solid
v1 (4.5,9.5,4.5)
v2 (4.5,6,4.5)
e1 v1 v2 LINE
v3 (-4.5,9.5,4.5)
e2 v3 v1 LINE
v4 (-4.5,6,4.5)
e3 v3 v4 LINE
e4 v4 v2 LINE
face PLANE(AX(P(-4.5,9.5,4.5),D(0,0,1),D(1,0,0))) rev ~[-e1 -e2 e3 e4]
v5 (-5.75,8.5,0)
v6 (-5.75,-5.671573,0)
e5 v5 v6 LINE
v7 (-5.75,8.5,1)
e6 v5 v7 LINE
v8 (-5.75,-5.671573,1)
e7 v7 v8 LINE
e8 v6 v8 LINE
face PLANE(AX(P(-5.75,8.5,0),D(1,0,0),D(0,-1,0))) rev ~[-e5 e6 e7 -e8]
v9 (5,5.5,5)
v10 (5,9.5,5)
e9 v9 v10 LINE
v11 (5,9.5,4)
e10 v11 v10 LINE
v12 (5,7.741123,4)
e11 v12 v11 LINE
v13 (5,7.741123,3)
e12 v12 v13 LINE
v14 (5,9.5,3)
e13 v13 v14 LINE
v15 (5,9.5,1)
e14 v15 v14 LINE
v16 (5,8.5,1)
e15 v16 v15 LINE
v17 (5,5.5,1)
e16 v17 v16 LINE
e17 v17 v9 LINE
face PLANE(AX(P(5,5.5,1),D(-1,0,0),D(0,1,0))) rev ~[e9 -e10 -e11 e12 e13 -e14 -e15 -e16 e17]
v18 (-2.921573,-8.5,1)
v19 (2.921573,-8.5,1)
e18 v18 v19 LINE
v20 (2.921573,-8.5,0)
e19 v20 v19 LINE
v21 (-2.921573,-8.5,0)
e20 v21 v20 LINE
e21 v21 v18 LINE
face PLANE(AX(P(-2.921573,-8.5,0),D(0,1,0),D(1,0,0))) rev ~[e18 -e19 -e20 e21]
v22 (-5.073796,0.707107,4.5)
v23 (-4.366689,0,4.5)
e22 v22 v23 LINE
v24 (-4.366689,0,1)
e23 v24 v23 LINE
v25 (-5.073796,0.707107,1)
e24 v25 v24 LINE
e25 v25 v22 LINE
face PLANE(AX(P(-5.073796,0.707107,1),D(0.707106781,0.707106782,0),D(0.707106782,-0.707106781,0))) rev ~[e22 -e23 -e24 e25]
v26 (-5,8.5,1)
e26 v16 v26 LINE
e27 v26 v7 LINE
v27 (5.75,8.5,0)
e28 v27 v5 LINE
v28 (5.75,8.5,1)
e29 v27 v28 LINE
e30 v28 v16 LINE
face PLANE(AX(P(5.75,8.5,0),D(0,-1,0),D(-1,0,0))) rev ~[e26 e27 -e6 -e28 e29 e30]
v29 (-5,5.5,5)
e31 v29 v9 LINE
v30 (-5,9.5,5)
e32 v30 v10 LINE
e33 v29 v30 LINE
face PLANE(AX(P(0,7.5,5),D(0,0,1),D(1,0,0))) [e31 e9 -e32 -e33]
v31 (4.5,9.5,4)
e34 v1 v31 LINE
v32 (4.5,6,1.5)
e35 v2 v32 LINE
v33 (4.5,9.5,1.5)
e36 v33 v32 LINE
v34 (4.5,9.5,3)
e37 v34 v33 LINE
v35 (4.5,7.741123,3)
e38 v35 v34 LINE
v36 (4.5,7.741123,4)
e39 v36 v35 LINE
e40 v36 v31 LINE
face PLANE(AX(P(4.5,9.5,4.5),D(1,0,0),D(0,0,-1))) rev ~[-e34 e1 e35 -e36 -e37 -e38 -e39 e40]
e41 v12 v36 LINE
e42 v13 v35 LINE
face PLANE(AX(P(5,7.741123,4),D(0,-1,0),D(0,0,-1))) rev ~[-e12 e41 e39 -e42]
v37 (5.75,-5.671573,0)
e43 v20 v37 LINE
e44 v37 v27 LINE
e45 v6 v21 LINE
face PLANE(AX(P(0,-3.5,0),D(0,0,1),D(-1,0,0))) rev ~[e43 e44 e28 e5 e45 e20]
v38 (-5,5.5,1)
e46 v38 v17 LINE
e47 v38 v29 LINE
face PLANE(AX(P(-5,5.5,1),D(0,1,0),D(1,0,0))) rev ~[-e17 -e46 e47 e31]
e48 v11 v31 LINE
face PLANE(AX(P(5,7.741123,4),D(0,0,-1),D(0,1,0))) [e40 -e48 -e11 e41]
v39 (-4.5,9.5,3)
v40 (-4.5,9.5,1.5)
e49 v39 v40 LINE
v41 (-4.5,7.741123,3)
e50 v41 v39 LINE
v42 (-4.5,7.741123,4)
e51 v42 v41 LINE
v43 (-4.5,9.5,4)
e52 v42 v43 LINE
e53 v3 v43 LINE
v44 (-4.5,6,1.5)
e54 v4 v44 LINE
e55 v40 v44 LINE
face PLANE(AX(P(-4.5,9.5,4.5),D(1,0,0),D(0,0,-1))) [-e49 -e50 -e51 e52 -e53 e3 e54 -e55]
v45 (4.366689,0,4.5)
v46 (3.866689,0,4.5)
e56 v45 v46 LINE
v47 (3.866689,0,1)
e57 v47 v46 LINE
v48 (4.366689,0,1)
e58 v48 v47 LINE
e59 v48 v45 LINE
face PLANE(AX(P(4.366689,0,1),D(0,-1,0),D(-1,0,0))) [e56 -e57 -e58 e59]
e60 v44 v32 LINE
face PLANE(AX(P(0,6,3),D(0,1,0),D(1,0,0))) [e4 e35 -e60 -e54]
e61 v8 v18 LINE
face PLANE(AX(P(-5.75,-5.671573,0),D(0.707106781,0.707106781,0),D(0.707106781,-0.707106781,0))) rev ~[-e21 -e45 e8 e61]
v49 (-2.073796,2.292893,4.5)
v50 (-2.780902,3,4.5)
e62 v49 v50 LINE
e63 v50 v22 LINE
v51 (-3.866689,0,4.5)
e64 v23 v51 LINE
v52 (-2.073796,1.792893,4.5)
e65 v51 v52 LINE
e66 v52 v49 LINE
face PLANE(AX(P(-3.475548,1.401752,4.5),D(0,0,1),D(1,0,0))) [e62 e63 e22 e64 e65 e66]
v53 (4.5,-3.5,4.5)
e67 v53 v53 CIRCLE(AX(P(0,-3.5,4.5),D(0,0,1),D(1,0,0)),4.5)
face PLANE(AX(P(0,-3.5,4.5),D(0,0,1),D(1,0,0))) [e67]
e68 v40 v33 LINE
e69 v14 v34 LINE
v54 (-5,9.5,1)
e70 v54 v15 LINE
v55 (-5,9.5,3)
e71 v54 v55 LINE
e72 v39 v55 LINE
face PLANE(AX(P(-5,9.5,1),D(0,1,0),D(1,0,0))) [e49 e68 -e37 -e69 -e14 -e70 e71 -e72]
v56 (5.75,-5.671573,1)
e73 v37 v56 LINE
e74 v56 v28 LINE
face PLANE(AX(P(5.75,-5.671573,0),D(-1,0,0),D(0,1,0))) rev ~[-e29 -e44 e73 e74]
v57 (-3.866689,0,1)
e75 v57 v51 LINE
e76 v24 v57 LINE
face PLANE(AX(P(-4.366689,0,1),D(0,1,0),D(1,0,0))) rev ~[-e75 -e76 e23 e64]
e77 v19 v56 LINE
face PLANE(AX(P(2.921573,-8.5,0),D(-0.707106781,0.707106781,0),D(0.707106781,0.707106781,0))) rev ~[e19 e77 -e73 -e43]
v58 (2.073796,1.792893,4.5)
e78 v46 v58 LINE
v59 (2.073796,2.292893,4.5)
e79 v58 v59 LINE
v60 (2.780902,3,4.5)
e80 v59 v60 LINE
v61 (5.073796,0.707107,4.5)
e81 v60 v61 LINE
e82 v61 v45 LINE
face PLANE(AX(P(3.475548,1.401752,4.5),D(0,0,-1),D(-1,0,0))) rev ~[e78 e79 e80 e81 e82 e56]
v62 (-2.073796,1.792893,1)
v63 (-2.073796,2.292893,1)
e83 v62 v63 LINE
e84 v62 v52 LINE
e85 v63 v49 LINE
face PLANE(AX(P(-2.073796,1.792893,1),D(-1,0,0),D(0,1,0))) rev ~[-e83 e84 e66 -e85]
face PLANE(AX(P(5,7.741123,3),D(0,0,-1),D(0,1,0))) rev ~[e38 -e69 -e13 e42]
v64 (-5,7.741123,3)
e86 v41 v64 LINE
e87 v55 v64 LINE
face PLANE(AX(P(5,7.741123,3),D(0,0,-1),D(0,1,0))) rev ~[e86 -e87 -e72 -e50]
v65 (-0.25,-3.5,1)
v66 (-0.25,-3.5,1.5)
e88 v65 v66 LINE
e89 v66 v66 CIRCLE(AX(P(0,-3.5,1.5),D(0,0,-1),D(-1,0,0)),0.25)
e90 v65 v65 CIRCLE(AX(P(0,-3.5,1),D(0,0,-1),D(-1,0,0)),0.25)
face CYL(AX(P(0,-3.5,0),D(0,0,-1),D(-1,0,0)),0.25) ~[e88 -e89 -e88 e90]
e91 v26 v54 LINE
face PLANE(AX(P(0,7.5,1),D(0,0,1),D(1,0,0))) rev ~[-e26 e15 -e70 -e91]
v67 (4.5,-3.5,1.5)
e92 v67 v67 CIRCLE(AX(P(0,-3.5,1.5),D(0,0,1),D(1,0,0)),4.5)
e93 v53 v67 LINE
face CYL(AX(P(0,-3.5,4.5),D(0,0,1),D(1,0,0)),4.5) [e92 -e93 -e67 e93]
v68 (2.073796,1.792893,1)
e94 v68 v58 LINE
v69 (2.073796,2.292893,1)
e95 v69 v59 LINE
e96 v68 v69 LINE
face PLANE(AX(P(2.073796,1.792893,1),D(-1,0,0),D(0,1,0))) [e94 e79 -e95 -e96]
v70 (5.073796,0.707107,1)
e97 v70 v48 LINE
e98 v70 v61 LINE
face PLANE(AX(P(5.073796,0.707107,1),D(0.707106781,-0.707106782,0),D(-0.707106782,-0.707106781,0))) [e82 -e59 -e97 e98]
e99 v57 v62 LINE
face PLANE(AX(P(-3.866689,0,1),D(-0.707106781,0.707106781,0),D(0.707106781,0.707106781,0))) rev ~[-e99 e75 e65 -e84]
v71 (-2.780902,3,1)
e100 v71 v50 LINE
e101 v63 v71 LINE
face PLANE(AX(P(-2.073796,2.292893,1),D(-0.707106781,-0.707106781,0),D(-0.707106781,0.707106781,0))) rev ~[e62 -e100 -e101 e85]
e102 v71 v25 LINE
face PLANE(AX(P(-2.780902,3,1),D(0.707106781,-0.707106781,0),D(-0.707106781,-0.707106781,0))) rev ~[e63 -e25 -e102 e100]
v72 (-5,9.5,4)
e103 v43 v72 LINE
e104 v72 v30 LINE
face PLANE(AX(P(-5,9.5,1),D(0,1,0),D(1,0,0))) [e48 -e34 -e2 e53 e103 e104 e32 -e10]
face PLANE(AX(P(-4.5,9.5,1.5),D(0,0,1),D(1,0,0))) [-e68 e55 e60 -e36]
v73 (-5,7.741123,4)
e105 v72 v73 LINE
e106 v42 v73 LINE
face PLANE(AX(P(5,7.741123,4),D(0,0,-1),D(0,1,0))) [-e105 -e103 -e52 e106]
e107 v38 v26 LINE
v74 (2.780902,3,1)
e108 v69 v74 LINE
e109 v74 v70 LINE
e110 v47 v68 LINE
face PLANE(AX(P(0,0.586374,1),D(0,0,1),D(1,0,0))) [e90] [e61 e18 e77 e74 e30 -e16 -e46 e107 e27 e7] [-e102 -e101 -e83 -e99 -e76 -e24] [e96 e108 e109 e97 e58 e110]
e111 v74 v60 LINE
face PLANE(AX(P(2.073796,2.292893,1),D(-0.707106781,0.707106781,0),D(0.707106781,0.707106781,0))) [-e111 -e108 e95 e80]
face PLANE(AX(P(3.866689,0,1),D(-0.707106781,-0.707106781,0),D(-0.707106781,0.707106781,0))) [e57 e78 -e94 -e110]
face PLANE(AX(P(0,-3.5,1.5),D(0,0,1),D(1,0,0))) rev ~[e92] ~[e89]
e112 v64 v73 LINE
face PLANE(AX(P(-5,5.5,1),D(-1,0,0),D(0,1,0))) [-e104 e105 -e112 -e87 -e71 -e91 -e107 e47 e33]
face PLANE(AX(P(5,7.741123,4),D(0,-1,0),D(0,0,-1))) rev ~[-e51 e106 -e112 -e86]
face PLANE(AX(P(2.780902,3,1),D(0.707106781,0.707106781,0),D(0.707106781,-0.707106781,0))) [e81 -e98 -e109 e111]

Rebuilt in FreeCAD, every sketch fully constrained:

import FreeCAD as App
import Part
import Sketcher
from FreeCAD import Vector
Q = App.Units.Quantity


def add_polygon(sketch, points):
    """Adds a closed chain of lines whose ends are joined by coincident constraints."""
    first, n = sketch.GeometryCount, len(points)
    for a, b in zip(points, points[1:] + points[:1]):
        sketch.addGeometry(Part.LineSegment(App.Vector(*a, 0), App.Vector(*b, 0)), False)
    for i in range(n):
        sketch.addConstraint(Sketcher.Constraint("Coincident", first + i, 2, first + (i + 1) % n, 1))

doc = App.newDocument("Part")
body = doc.addObject("PartDesign::Body", "Body")

sketch1 = body.newObject("Sketcher::SketchObject", "Sketch")
sketch1.AttachmentSupport = (doc.getObject("XY_Plane"), [""])
sketch1.MapMode = "FlatFace"
add_polygon(sketch1, [(-5.8, -5.7), (-2.9, -8.5), (2.9, -8.5), (5.8, -5.7), (5.8, 8.5), (-5.8, 8.5)])
sketch1.addConstraint([
    Sketcher.Constraint("Horizontal", 1),
    Sketcher.Constraint("Vertical", 3),
    Sketcher.Constraint("Horizontal", 4),
    Sketcher.Constraint("Vertical", 5),
    Sketcher.Constraint("Symmetric", 2, 2, 5, 2, -2),
    Sketcher.Constraint("Perpendicular", 0, 2),
    Sketcher.Constraint("Equal", 0, 2),
    Sketcher.Constraint("Distance", 0, Q("4 mm")),
    Sketcher.Constraint("DistanceX", 4, 2, 4, 1, Q("11.5 mm")),
    Sketcher.Constraint("DistanceY", 1, 2, 3, 2, Q("17 mm")),
    Sketcher.Constraint("DistanceY", 0, 2, -1, 1, Q("8.5 mm")),
])
pad1 = body.newObject("PartDesign::Pad", "Pad")
pad1.Profile = sketch1
pad1.Length = 1

sketch2 = body.newObject("Sketcher::SketchObject", "Sketch001")
sketch2.AttachmentSupport = (doc.getObject("XY_Plane"), [""])
sketch2.MapMode = "FlatFace"
sketch2.AttachmentOffset = App.Placement(Vector(0, 0, 1), App.Rotation())
add_polygon(sketch2, [(-2.8, 3), (-5.1, 0.7), (-4.4, 0), (-3.9, 0), (-2.1, 1.8), (-2.1, 2.3)])
add_polygon(sketch2, [(2.1, 2.3), (2.1, 1.8), (3.9, 0), (4.4, 0), (5.1, 0.7), (2.8, 3)])
sketch2.addConstraint([
    Sketcher.Constraint("Horizontal", 2),
    Sketcher.Constraint("Vertical", 4),
    Sketcher.Constraint("Vertical", 6),
    Sketcher.Constraint("Horizontal", 8),
    Sketcher.Constraint("Symmetric", 2, 2, 7, 2, -1, 1),
    Sketcher.Constraint("Symmetric", 3, 2, 6, 2, -2),
    Sketcher.Constraint("Symmetric", 1, 2, 8, 2, -2),
    Sketcher.Constraint("Symmetric", 0, 2, 9, 2, -2),
    Sketcher.Constraint("Symmetric", 5, 2, 10, 2, -2),
    Sketcher.Constraint("Perpendicular", 0, 1),
    Sketcher.Constraint("Perpendicular", 1, 3),
    Sketcher.Constraint("Perpendicular", 3, 5),
    Sketcher.Constraint("Parallel", 5, 7),
    Sketcher.Constraint("Perpendicular", 10, 11),
    Sketcher.Constraint("Equal", 8, 4),
    Sketcher.Constraint("Distance", 1, Q("1 mm")),
    Sketcher.Constraint("DistanceX", 2, 1, 2, 2, Q("0.5 mm")),
    Sketcher.Constraint("DistanceY", -1, 1, 5, 2, Q("3 mm")),
    Sketcher.Constraint("DistanceX", 1, 2, -1, 1, Q("4.366689 mm")),
])
pad2 = body.newObject("PartDesign::Pad", "Pad001")
pad2.Profile = sketch2
pad2.Length = 3.5

sketch3 = body.newObject("Sketcher::SketchObject", "Sketch002")
sketch3.AttachmentSupport = (doc.getObject("XY_Plane"), [""])
sketch3.MapMode = "FlatFace"
sketch3.addGeometry(Part.Circle(Vector(0, -3.5, 0), Vector(0, 0, 1), 0.25), False)
sketch3.addConstraint([
    Sketcher.Constraint("PointOnObject", 0, 3, -2),
    Sketcher.Constraint("Diameter", 0, Q("0.5 mm")),
    Sketcher.Constraint("DistanceY", 0, 3, -1, 1, Q("3.5 mm")),
])
pad3 = body.newObject("PartDesign::Pad", "Pad002")
pad3.Profile = sketch3
pad3.Length = 4.5

sketch4 = body.newObject("Sketcher::SketchObject", "Sketch003")
sketch4.AttachmentSupport = (doc.getObject("XY_Plane"), [""])
sketch4.MapMode = "FlatFace"
sketch4.AttachmentOffset = App.Placement(Vector(0, 0, 4.5), App.Rotation())
sketch4.addGeometry(Part.Circle(Vector(0, -3.5, 0), Vector(0, 0, 1), 4.5), False)
sketch4.addConstraint([
    Sketcher.Constraint("PointOnObject", 0, 3, -2),
    Sketcher.Constraint("Diameter", 0, Q("9 mm")),
    Sketcher.Constraint("DistanceY", 0, 3, -1, 1, Q("3.5 mm")),
])
pad4 = body.newObject("PartDesign::Pad", "Pad003")
pad4.Profile = sketch4
pad4.Length = 3
pad4.Reversed = True

sketch5 = body.newObject("Sketcher::SketchObject", "Sketch004")
sketch5.AttachmentSupport = (doc.getObject("XY_Plane"), [""])
sketch5.MapMode = "FlatFace"
sketch5.AttachmentOffset = App.Placement(Vector(0, 0, 1), App.Rotation())
add_polygon(sketch5, [(-5, 9.5), (-5, 5.5), (5, 5.5), (5, 9.5)])
sketch5.addConstraint([
    Sketcher.Constraint("Vertical", 0),
    Sketcher.Constraint("Horizontal", 1),
    Sketcher.Constraint("Vertical", 2),
    Sketcher.Constraint("Horizontal", 3),
    Sketcher.Constraint("DistanceX", 1, 1, 1, 2, Q("10 mm")),
    Sketcher.Constraint("DistanceY", 0, 2, 0, 1, Q("4 mm")),
    Sketcher.Constraint("DistanceX", 0, 2, -1, 1, Q("5 mm")),
    Sketcher.Constraint("DistanceY", -1, 1, 0, 2, Q("5.5 mm")),
])
pad5 = body.newObject("PartDesign::Pad", "Pad004")
pad5.Profile = sketch5
pad5.Length = 4

sketch6 = body.newObject("Sketcher::SketchObject", "Sketch005")
sketch6.AttachmentSupport = (doc.getObject("XZ_Plane"), [""])
sketch6.MapMode = "FlatFace"
sketch6.AttachmentOffset = App.Placement(Vector(0, 0, -9.5), App.Rotation())
add_polygon(sketch6, [(-4.5, 1.5), (-4.5, 4.5), (4.5, 4.5), (4.5, 1.5)])
sketch6.addConstraint([
    Sketcher.Constraint("Vertical", 0),
    Sketcher.Constraint("Horizontal", 1),
    Sketcher.Constraint("Vertical", 2),
    Sketcher.Constraint("Horizontal", 3),
    Sketcher.Constraint("DistanceX", 1, 1, 1, 2, Q("9 mm")),
    Sketcher.Constraint("DistanceY", 0, 1, 0, 2, Q("3 mm")),
    Sketcher.Constraint("DistanceX", 0, 2, -1, 1, Q("4.5 mm")),
    Sketcher.Constraint("DistanceY", -1, 1, 0, 2, Q("4.5 mm")),
])
pocket1 = body.newObject("PartDesign::Pocket", "Pocket")
pocket1.Profile = sketch6
pocket1.Length = 3.5
pocket1.Reversed = True

sketch7 = body.newObject("Sketcher::SketchObject", "Sketch006")
sketch7.AttachmentSupport = (doc.getObject("YZ_Plane"), [""])
sketch7.MapMode = "FlatFace"
sketch7.AttachmentOffset = App.Placement(Vector(0, 0, 5), App.Rotation())
add_polygon(sketch7, [(9.7, 4), (7.7, 4), (7.7, 3), (9.7, 3)])
sketch7.addConstraint([
    Sketcher.Constraint("Horizontal", 0),
    Sketcher.Constraint("Vertical", 1),
    Sketcher.Constraint("Horizontal", 2),
    Sketcher.Constraint("Vertical", 3),
    Sketcher.Constraint("DistanceX", 0, 2, 0, 1, Q("2 mm")),
    Sketcher.Constraint("DistanceY", 1, 2, 1, 1, Q("1 mm")),
    Sketcher.Constraint("DistanceY", -1, 1, 0, 2, Q("4 mm")),
    Sketcher.Constraint("DistanceX", -1, 1, 0, 2, Q("7.741123 mm")),
])
pocket2 = body.newObject("PartDesign::Pocket", "Pocket001")
pocket2.Profile = sketch7
pocket2.Type = "ThroughAll"

doc.recompute()
